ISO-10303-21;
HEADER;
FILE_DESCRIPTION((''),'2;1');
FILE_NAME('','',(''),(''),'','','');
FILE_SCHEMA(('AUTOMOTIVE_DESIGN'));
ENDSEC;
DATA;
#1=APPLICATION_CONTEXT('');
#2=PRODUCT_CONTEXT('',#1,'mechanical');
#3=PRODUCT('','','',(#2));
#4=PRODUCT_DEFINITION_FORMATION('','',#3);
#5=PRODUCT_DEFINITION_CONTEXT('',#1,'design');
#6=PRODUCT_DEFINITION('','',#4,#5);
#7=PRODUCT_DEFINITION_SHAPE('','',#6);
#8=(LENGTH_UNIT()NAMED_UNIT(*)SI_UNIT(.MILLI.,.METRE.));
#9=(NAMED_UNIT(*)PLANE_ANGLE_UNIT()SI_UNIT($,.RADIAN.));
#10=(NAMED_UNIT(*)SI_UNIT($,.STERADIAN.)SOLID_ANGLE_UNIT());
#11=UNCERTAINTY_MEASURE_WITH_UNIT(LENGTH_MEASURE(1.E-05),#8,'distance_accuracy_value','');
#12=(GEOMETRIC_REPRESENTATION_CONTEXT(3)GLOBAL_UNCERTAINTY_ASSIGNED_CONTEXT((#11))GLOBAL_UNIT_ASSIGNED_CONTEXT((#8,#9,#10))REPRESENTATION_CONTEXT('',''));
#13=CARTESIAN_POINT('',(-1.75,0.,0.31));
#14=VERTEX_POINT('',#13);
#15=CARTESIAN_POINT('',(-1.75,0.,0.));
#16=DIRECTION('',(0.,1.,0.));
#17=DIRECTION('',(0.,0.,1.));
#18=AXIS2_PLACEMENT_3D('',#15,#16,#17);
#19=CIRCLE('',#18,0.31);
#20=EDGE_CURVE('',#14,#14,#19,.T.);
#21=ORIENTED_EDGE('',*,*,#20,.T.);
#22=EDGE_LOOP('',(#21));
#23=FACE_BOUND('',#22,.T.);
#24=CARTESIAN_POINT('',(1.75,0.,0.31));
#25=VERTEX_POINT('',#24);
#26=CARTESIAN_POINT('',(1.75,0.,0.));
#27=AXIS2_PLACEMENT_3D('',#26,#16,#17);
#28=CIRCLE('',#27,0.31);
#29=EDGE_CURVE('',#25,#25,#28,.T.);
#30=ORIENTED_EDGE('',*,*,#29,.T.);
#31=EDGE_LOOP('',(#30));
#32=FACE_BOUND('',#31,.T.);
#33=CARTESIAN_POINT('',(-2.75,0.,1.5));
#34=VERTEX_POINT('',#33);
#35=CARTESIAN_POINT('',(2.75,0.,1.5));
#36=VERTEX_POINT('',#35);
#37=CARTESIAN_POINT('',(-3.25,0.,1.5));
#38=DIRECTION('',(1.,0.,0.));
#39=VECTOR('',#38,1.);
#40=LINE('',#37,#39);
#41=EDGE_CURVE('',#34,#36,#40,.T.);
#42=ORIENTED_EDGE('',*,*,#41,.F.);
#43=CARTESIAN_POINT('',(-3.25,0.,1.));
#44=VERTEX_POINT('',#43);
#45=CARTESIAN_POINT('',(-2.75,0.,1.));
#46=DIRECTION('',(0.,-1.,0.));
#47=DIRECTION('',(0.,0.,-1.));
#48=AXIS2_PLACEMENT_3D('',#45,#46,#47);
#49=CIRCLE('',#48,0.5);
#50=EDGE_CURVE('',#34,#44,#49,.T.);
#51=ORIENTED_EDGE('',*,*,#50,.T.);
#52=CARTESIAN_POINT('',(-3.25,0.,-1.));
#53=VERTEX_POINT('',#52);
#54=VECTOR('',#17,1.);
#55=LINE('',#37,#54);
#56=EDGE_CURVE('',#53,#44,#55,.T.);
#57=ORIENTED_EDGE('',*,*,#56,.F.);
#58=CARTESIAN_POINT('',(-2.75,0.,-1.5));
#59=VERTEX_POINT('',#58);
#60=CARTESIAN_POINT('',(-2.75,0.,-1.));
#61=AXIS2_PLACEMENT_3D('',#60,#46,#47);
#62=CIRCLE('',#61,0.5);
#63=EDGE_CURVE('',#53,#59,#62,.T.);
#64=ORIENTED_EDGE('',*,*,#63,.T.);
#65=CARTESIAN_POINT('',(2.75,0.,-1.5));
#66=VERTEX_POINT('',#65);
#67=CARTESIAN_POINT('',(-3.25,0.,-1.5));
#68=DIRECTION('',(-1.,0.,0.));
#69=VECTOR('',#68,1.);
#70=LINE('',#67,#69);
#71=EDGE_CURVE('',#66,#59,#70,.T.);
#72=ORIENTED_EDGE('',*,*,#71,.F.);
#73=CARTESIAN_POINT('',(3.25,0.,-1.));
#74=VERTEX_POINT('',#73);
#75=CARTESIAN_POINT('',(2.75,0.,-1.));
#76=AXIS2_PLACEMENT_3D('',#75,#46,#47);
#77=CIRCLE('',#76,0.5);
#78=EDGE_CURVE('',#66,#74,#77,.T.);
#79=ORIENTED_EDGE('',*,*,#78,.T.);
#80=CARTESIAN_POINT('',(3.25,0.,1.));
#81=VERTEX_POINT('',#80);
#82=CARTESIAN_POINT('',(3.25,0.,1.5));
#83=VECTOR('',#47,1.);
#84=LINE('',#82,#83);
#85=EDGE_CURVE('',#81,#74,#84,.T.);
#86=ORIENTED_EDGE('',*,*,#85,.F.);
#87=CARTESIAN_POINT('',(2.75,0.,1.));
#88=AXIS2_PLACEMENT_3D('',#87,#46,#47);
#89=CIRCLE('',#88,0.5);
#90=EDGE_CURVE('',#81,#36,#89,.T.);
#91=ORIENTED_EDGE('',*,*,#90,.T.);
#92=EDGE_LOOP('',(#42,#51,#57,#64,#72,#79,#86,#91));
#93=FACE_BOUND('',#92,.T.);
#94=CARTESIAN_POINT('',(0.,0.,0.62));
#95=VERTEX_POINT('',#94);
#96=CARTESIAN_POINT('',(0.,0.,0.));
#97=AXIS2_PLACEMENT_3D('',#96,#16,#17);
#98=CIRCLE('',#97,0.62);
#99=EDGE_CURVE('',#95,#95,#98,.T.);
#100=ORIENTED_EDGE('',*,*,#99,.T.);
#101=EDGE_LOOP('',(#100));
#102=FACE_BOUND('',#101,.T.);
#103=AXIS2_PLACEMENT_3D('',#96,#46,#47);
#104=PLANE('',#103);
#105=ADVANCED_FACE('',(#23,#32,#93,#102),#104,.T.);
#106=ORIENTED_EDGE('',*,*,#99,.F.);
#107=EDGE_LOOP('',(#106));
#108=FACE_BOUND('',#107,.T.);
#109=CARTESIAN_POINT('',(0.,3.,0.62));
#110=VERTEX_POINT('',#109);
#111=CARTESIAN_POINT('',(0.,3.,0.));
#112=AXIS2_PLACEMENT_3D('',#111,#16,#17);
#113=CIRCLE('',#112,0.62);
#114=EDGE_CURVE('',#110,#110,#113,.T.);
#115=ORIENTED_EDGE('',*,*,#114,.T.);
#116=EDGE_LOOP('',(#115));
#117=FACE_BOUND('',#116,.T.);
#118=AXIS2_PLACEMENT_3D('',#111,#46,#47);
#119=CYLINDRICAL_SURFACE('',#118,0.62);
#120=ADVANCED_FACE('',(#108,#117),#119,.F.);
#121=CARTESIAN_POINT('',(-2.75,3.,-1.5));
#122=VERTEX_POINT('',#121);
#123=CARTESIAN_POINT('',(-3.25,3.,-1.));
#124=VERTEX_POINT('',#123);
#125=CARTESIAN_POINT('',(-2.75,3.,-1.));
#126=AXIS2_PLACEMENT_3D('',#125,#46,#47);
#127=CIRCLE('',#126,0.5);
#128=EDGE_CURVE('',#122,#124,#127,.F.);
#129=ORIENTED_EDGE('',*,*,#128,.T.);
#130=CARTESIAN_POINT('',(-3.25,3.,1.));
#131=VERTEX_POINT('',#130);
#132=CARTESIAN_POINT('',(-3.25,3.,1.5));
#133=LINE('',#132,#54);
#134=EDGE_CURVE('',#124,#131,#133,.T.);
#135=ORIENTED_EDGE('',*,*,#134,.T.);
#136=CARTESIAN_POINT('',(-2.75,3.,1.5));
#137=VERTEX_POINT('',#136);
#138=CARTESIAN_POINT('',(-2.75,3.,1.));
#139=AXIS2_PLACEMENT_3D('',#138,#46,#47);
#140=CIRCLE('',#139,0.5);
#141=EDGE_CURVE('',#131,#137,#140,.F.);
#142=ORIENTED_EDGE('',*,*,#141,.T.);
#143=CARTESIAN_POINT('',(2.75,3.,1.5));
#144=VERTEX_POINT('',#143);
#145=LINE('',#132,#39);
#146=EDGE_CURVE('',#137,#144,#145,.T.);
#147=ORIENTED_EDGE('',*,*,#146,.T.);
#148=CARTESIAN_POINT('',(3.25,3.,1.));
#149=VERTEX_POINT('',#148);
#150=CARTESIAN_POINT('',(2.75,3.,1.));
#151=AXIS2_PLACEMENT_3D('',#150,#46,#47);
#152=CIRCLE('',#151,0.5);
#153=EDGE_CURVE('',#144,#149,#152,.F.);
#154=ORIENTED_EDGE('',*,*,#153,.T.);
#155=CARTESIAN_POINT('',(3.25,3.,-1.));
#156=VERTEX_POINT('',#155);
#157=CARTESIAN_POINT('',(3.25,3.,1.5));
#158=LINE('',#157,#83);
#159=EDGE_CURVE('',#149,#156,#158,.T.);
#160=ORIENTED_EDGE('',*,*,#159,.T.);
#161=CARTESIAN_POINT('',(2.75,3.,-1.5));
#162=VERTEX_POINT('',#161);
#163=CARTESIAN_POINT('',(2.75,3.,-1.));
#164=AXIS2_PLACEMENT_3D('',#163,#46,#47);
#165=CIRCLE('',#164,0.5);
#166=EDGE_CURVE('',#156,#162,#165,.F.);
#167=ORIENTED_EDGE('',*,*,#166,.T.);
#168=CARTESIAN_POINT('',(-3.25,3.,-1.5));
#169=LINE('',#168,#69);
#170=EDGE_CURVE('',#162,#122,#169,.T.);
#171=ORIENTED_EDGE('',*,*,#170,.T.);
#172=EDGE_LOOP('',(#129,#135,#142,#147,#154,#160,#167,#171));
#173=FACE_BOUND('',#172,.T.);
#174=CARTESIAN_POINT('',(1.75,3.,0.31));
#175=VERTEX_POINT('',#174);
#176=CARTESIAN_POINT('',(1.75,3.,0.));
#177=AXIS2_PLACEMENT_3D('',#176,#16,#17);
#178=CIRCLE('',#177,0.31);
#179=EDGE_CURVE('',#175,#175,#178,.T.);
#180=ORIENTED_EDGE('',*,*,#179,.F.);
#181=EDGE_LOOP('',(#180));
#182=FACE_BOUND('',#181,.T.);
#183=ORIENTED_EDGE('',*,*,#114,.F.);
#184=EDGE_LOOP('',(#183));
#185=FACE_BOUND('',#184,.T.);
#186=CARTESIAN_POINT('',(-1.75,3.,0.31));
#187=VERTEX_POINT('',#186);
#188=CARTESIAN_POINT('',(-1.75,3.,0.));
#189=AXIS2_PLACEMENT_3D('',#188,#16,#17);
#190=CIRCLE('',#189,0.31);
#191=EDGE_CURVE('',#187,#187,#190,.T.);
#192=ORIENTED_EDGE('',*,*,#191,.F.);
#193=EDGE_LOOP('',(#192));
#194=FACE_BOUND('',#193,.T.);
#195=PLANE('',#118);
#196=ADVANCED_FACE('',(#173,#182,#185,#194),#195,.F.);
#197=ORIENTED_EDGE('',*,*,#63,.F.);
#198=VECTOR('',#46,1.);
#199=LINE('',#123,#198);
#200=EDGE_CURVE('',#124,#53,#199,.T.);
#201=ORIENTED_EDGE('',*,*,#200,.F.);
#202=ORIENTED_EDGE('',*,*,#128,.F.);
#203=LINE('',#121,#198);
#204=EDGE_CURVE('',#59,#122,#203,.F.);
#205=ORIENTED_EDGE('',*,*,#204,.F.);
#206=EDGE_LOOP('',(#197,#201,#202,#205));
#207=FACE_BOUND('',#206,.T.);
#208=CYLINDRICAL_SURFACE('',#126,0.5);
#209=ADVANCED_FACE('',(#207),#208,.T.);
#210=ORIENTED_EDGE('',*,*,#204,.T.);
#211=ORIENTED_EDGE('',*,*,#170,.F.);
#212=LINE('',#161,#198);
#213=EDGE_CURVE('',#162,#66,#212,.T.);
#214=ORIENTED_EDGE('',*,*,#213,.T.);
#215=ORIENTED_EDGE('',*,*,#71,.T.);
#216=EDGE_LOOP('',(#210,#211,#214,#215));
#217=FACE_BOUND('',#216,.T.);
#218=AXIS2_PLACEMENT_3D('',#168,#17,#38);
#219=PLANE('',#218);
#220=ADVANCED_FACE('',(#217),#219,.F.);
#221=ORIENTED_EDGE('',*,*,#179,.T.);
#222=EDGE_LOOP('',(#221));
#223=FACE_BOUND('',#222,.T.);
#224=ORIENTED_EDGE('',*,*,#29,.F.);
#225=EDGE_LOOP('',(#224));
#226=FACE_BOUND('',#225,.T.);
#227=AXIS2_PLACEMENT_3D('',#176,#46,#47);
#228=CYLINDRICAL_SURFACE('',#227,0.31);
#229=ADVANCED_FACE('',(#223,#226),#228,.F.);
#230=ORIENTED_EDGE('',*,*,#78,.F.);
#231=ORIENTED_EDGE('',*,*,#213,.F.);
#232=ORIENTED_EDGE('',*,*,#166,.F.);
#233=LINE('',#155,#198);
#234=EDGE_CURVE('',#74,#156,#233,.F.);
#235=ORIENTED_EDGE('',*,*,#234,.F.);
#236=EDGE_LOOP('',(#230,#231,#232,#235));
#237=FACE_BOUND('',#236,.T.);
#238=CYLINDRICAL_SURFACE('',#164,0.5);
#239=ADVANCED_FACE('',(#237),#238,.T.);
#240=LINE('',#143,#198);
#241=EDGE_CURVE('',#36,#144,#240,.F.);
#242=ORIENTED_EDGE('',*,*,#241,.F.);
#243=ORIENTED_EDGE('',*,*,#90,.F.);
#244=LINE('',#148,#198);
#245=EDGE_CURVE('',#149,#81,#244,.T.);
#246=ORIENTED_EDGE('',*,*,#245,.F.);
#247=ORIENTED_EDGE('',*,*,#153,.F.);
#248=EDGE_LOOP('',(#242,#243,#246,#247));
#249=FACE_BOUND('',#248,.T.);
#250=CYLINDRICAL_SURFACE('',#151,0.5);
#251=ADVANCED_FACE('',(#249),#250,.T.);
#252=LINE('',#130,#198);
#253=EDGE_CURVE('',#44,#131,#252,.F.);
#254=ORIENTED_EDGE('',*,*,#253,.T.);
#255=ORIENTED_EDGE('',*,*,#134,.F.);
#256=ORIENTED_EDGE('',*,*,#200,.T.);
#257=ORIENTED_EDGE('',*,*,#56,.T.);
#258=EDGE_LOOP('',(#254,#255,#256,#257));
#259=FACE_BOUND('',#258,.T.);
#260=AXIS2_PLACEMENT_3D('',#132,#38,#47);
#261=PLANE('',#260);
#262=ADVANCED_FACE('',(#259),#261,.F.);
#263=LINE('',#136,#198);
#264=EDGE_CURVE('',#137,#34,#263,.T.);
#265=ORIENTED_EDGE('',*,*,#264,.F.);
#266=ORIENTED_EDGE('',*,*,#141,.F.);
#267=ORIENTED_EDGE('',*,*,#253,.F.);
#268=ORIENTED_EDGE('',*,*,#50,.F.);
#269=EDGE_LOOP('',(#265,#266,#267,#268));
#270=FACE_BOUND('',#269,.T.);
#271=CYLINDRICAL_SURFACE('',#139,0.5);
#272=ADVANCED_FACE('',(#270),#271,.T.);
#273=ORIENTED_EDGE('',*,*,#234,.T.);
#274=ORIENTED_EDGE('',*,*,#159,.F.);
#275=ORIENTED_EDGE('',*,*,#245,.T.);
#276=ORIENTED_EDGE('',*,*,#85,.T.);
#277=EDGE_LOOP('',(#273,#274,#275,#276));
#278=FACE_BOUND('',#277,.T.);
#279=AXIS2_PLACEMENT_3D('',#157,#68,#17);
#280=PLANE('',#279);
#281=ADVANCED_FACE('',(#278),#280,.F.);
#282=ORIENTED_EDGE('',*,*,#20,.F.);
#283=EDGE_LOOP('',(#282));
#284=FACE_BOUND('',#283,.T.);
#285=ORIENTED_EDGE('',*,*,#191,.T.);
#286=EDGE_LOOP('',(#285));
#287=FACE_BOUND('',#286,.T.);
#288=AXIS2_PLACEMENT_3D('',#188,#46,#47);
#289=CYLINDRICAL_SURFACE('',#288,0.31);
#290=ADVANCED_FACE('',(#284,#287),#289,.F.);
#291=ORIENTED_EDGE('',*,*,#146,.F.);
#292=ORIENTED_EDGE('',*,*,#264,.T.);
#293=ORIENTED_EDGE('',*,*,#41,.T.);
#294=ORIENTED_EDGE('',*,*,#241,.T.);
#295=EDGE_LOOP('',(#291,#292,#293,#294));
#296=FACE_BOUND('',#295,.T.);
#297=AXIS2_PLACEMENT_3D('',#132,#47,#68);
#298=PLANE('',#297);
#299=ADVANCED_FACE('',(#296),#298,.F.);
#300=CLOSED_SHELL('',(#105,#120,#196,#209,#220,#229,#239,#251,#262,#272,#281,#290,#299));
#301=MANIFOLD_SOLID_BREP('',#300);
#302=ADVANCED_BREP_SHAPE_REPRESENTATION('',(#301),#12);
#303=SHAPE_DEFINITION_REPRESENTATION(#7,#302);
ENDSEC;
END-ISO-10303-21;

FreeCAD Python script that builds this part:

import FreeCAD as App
import Part
import Sketcher


def edges_at(feature, points):
    """Names of the edges that pass closest to the given points."""
    edges = feature.Shape.Edges
    near = lambda p: min(range(len(edges)), key=lambda i: edges[i].distToShape(Part.Vertex(*p))[0])
    return sorted({f"Edge{near(p) + 1}" for p in points})

doc = App.newDocument("Part")
body = doc.addObject("PartDesign::Body", "Body")

# Sketch on XZ plane
sketch1 = doc.addObject("Sketcher::SketchObject", "Sketch")
body.addObject(sketch1)
sketch1.AttachmentSupport = (doc.XZ_Plane, [""])
sketch1.MapMode = "FlatFace"
sketch1.addGeometry([
    Part.LineSegment(App.Vector(-3.25, -1.5, 0), App.Vector(-3.25, 1.5, 0)),  # 0
    Part.LineSegment(App.Vector(-3.25, 1.5, 0), App.Vector(3.25, 1.5, 0)),  # 1
    Part.LineSegment(App.Vector(3.25, 1.5, 0), App.Vector(3.25, -1.5, 0)),  # 2
    Part.LineSegment(App.Vector(3.25, -1.5, 0), App.Vector(-3.25, -1.5, 0)),  # 3
    Part.Circle(App.Vector(-1.75, 0, 0), App.Vector(0, 0, 1), 0.31),  # 4
    Part.Circle(App.Vector(0, 0, 0), App.Vector(0, 0, 1), 0.62),  # 5
    Part.Circle(App.Vector(1.75, 0, 0), App.Vector(0, 0, 1), 0.31),  # 6
], False)
sketch1.addConstraint([
    Sketcher.Constraint("Coincident", 0, 2, 1, 1),
    Sketcher.Constraint("Coincident", 1, 2, 2, 1),
    Sketcher.Constraint("Coincident", 2, 2, 3, 1),
    Sketcher.Constraint("Coincident", 3, 2, 0, 1),
    Sketcher.Constraint("Vertical", 0),
    Sketcher.Constraint("Horizontal", 1),
    Sketcher.Constraint("Vertical", 2),
    Sketcher.Constraint("Horizontal", 3),
    Sketcher.Constraint("Coincident", 5, 3, -1, 1),
    Sketcher.Constraint("Equal", 4, 6),
    Sketcher.Constraint("Symmetric", 4, 3, 6, 3, -1, 1),
    Sketcher.Constraint("Symmetric", 0, 2, 2, 2, -1, 1),
    Sketcher.Constraint("PointOnObject", 4, 3, -1),
    Sketcher.Constraint("Diameter", 4, 0.62),
    Sketcher.Constraint("Diameter", 5, 1.24),
    Sketcher.Constraint("DistanceY", 0, 1, 0, 2, 3.0),
    Sketcher.Constraint("DistanceX", 1, 1, 1, 2, 6.5),
    Sketcher.Constraint("DistanceX", 0, 2, 6, 3, 5.0),
])
pad1 = doc.addObject("PartDesign::Pad", "Pad")
body.addObject(pad1)
pad1.Profile = sketch1
pad1.Length = 3
pad1.Reversed = True
doc.recompute()

fillet = doc.addObject("PartDesign::Fillet", "Fillet")
body.addObject(fillet)
fillet.Base = (pad1, edges_at(pad1, [
    (-3.25, 1.5, -1.5),
    (3.25, 1.5, -1.5),
    (3.25, 1.5, 1.5),
    (-3.25, 1.5, 1.5),
]))
fillet.Radius = 0.5

doc.recompute()
